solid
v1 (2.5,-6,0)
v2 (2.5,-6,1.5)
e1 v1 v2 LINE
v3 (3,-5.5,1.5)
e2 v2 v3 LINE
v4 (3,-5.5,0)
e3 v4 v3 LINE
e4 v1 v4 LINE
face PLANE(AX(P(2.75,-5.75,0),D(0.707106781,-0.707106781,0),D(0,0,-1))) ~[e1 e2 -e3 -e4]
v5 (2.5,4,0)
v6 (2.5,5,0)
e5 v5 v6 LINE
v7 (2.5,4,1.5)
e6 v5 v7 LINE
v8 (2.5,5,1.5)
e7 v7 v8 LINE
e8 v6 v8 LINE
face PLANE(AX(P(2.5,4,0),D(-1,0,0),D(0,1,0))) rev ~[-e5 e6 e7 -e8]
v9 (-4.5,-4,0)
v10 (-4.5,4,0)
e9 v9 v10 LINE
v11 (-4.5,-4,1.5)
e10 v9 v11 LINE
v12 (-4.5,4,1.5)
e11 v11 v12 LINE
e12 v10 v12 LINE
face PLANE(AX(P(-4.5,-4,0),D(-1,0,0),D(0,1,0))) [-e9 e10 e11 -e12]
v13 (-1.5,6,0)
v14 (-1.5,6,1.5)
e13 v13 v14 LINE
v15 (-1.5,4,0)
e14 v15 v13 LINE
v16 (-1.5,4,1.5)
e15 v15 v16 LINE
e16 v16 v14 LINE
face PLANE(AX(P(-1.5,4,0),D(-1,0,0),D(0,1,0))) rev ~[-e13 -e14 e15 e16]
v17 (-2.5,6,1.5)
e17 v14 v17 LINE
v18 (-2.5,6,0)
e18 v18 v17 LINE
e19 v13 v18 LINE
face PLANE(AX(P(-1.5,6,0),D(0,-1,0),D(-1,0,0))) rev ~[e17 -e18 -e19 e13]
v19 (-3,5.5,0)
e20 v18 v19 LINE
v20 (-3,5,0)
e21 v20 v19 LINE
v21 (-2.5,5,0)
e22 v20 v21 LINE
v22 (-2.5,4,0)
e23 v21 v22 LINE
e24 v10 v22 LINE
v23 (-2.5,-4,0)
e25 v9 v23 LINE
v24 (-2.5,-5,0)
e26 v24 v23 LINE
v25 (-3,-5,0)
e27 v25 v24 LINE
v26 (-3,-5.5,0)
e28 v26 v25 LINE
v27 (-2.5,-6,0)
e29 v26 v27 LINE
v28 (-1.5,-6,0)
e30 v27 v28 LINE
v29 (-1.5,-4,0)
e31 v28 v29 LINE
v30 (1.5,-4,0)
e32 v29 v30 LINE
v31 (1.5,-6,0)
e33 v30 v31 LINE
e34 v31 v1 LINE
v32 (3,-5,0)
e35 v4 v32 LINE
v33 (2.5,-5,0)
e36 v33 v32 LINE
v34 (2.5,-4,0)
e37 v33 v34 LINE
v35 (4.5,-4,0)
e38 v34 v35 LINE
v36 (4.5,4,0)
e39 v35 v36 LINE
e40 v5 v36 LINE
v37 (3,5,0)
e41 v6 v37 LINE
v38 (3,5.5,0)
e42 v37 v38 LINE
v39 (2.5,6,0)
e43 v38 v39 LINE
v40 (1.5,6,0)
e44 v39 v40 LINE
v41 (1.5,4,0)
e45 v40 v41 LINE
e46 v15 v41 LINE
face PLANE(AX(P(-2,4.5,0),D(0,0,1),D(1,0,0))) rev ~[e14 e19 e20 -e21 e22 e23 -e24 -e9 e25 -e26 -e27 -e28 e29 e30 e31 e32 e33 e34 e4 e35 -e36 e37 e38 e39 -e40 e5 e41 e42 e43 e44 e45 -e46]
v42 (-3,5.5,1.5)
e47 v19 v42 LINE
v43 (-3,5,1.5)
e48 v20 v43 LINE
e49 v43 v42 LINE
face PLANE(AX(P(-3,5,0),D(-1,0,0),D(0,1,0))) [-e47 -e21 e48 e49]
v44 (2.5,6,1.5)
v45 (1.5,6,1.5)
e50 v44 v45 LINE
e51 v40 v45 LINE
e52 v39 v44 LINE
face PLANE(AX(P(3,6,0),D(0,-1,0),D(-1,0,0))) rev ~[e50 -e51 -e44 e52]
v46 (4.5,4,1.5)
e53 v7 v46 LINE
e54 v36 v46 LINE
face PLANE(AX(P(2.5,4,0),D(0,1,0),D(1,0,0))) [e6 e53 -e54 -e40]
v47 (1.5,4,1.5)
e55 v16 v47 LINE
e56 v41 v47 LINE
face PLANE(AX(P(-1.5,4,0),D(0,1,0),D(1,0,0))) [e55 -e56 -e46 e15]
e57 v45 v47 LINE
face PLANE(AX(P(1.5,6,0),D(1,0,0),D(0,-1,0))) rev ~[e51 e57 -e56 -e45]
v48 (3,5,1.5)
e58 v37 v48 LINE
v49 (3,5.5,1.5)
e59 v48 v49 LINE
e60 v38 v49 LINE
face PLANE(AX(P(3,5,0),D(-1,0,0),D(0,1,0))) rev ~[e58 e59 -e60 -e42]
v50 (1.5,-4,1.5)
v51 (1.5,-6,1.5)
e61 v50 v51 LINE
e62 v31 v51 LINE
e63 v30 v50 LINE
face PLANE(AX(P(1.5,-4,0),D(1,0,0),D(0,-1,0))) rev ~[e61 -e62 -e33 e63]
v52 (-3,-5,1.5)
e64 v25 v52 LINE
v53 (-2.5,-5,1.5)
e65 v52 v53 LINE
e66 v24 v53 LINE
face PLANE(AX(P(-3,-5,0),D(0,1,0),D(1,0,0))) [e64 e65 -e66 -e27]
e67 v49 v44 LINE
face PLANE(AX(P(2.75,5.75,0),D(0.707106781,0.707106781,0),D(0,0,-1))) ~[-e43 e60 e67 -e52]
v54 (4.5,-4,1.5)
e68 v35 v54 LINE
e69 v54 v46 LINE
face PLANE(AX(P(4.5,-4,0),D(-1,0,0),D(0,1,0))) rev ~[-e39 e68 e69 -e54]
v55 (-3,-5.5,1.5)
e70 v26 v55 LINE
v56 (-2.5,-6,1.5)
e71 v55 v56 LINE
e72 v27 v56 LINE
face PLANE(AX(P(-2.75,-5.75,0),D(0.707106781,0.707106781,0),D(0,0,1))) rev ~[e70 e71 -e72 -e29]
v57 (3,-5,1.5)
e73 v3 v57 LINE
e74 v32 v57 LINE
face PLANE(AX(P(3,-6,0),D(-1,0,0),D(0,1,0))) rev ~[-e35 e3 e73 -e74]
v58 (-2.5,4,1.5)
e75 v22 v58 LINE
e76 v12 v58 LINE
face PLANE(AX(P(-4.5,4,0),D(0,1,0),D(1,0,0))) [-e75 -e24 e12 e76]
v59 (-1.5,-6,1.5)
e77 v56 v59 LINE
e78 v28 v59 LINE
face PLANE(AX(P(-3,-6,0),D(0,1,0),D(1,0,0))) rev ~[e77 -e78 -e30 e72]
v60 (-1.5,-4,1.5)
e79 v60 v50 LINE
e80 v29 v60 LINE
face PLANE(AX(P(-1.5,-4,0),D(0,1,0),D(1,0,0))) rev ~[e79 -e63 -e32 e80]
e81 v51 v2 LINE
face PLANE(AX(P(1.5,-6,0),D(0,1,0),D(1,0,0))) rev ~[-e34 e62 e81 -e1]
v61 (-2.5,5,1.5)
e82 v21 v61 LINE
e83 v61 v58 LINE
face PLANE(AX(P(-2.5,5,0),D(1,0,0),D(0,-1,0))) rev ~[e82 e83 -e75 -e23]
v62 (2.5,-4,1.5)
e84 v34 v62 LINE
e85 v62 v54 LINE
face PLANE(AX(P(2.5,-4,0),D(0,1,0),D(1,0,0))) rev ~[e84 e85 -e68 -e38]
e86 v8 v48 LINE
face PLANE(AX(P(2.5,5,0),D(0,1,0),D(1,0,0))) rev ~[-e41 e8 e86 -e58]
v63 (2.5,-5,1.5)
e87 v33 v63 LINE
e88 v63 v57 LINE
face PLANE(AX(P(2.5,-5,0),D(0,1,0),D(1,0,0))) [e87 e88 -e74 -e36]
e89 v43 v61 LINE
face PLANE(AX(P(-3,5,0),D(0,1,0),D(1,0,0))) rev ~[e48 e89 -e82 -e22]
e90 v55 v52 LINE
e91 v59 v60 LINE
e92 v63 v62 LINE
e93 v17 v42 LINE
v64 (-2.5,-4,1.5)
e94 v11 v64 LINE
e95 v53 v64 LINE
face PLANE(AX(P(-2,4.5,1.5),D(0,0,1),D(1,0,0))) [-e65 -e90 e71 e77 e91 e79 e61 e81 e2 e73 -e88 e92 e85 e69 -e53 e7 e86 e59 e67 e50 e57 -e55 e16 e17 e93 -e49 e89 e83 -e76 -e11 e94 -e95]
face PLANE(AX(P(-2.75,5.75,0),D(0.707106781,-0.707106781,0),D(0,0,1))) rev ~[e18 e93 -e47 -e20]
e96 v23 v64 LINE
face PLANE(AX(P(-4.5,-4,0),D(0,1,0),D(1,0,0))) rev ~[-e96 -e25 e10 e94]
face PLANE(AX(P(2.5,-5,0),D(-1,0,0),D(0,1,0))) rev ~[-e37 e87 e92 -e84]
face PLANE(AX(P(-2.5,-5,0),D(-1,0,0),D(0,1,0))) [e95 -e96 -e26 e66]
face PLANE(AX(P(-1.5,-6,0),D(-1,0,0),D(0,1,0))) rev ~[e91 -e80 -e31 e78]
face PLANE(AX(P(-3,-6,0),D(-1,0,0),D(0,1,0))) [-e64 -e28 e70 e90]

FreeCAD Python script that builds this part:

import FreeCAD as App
import Part
import Sketcher
Q = App.Units.Quantity


def edges_at(feature, points):
    """Names of the edges that pass closest to the given points."""
    edges = feature.Shape.Edges
    near = lambda p: min(range(len(edges)), key=lambda i: edges[i].distToShape(Part.Vertex(*p))[0])
    return sorted({f"Edge{near(p) + 1}" for p in points})


def add_polygon(sketch, points):
    """Adds a closed chain of lines whose ends are joined by coincident constraints."""
    first, n = sketch.GeometryCount, len(points)
    for a, b in zip(points, points[1:] + points[:1]):
        sketch.addGeometry(Part.LineSegment(App.Vector(*a, 0), App.Vector(*b, 0)), False)
    for i in range(n):
        sketch.addConstraint(Sketcher.Constraint("Coincident", first + i, 2, first + (i + 1) % n, 1))

doc = App.newDocument("Part")
body = doc.addObject("PartDesign::Body", "Body")

sketch1 = body.newObject("Sketcher::SketchObject", "Sketch")
sketch1.AttachmentSupport = (doc.getObject("XY_Plane"), [""])
sketch1.MapMode = "FlatFace"
add_polygon(sketch1, [(-2.5, 5), (-2.5, 4), (-4.5, 4), (-4.5, -4), (-2.5, -4), (-2.5, -5), (-3, -5), (-3, -6), (-1.5, -6), (-1.5, -4), (1.5, -4), (1.5, -6), (3, -6), (3, -5), (2.5, -5), (2.5, -4), (4.5, -4), (4.5, 4), (2.5, 4), (2.5, 5), (3, 5), (3, 6), (1.5, 6), (1.5, 4), (-1.5, 4), (-1.5, 6), (-3, 6), (-3, 5)])
sketch1.addConstraint([
    Sketcher.Constraint("Vertical", 0),
    Sketcher.Constraint("Horizontal", 1),
    Sketcher.Constraint("Vertical", 2),
    Sketcher.Constraint("Horizontal", 3),
    Sketcher.Constraint("Vertical", 4),
    Sketcher.Constraint("Horizontal", 5),
    Sketcher.Constraint("Vertical", 6),
    Sketcher.Constraint("Horizontal", 7),
    Sketcher.Constraint("Vertical", 8),
    Sketcher.Constraint("Horizontal", 9),
    Sketcher.Constraint("Vertical", 10),
    Sketcher.Constraint("Horizontal", 11),
    Sketcher.Constraint("Vertical", 12),
    Sketcher.Constraint("Horizontal", 13),
    Sketcher.Constraint("Vertical", 14),
    Sketcher.Constraint("Horizontal", 15),
    Sketcher.Constraint("Vertical", 16),
    Sketcher.Constraint("Horizontal", 17),
    Sketcher.Constraint("Vertical", 18),
    Sketcher.Constraint("Horizontal", 19),
    Sketcher.Constraint("Vertical", 20),
    Sketcher.Constraint("Horizontal", 21),
    Sketcher.Constraint("Vertical", 22),
    Sketcher.Constraint("Horizontal", 23),
    Sketcher.Constraint("Vertical", 24),
    Sketcher.Constraint("Horizontal", 25),
    Sketcher.Constraint("Vertical", 26),
    Sketcher.Constraint("Horizontal", 27),
    Sketcher.Constraint("Symmetric", 0, 2, 14, 2, -1, 1),
    Sketcher.Constraint("Symmetric", 2, 2, 16, 2, -1, 1),
    Sketcher.Constraint("Symmetric", 4, 2, 18, 2, -1, 1),
    Sketcher.Constraint("Symmetric", 6, 2, 20, 2, -1, 1),
    Sketcher.Constraint("Symmetric", 8, 2, 22, 2, -1, 1),
    Sketcher.Constraint("Symmetric", 10, 2, 24, 2, -1, 1),
    Sketcher.Constraint("Symmetric", 12, 2, 26, 2, -1, 1),
    Sketcher.Constraint("Symmetric", 7, 2, 10, 2, -2),
    Sketcher.Constraint("Symmetric", 5, 2, 12, 2, -2),
    Sketcher.Constraint("Symmetric", 3, 2, 14, 2, -2),
    Sketcher.Constraint("Horizontal", 3, 2, 8, 2),
    Sketcher.Constraint("Equal", 4, 6),
    Sketcher.Constraint("Equal", 17, 8),
    Sketcher.Constraint("DistanceX", 1, 2, 1, 1, Q("2 mm")),
    Sketcher.Constraint("DistanceX", 9, 1, 9, 2, Q("3 mm")),
    Sketcher.Constraint("DistanceY", 2, 2, 2, 1, Q("8 mm")),
    Sketcher.Constraint("DistanceX", 5, 2, 5, 1, Q("0.5 mm")),
    Sketcher.Constraint("DistanceX", 7, 1, 7, 2, Q("1.5 mm")),
])
pad1 = body.newObject("PartDesign::Pad", "Pad")
pad1.Profile = sketch1
pad1.Length = 1.5
doc.recompute()

chamfer = body.newObject("PartDesign::Chamfer", "Chamfer")
chamfer.Base = (pad1, edges_at(pad1, [
    (-3, 6, 0.75),
    (3, 6, 0.75),
    (3, -6, 0.75),
    (-3, -6, 0.75),
]))
chamfer.Size = 0.5

doc.recompute()
